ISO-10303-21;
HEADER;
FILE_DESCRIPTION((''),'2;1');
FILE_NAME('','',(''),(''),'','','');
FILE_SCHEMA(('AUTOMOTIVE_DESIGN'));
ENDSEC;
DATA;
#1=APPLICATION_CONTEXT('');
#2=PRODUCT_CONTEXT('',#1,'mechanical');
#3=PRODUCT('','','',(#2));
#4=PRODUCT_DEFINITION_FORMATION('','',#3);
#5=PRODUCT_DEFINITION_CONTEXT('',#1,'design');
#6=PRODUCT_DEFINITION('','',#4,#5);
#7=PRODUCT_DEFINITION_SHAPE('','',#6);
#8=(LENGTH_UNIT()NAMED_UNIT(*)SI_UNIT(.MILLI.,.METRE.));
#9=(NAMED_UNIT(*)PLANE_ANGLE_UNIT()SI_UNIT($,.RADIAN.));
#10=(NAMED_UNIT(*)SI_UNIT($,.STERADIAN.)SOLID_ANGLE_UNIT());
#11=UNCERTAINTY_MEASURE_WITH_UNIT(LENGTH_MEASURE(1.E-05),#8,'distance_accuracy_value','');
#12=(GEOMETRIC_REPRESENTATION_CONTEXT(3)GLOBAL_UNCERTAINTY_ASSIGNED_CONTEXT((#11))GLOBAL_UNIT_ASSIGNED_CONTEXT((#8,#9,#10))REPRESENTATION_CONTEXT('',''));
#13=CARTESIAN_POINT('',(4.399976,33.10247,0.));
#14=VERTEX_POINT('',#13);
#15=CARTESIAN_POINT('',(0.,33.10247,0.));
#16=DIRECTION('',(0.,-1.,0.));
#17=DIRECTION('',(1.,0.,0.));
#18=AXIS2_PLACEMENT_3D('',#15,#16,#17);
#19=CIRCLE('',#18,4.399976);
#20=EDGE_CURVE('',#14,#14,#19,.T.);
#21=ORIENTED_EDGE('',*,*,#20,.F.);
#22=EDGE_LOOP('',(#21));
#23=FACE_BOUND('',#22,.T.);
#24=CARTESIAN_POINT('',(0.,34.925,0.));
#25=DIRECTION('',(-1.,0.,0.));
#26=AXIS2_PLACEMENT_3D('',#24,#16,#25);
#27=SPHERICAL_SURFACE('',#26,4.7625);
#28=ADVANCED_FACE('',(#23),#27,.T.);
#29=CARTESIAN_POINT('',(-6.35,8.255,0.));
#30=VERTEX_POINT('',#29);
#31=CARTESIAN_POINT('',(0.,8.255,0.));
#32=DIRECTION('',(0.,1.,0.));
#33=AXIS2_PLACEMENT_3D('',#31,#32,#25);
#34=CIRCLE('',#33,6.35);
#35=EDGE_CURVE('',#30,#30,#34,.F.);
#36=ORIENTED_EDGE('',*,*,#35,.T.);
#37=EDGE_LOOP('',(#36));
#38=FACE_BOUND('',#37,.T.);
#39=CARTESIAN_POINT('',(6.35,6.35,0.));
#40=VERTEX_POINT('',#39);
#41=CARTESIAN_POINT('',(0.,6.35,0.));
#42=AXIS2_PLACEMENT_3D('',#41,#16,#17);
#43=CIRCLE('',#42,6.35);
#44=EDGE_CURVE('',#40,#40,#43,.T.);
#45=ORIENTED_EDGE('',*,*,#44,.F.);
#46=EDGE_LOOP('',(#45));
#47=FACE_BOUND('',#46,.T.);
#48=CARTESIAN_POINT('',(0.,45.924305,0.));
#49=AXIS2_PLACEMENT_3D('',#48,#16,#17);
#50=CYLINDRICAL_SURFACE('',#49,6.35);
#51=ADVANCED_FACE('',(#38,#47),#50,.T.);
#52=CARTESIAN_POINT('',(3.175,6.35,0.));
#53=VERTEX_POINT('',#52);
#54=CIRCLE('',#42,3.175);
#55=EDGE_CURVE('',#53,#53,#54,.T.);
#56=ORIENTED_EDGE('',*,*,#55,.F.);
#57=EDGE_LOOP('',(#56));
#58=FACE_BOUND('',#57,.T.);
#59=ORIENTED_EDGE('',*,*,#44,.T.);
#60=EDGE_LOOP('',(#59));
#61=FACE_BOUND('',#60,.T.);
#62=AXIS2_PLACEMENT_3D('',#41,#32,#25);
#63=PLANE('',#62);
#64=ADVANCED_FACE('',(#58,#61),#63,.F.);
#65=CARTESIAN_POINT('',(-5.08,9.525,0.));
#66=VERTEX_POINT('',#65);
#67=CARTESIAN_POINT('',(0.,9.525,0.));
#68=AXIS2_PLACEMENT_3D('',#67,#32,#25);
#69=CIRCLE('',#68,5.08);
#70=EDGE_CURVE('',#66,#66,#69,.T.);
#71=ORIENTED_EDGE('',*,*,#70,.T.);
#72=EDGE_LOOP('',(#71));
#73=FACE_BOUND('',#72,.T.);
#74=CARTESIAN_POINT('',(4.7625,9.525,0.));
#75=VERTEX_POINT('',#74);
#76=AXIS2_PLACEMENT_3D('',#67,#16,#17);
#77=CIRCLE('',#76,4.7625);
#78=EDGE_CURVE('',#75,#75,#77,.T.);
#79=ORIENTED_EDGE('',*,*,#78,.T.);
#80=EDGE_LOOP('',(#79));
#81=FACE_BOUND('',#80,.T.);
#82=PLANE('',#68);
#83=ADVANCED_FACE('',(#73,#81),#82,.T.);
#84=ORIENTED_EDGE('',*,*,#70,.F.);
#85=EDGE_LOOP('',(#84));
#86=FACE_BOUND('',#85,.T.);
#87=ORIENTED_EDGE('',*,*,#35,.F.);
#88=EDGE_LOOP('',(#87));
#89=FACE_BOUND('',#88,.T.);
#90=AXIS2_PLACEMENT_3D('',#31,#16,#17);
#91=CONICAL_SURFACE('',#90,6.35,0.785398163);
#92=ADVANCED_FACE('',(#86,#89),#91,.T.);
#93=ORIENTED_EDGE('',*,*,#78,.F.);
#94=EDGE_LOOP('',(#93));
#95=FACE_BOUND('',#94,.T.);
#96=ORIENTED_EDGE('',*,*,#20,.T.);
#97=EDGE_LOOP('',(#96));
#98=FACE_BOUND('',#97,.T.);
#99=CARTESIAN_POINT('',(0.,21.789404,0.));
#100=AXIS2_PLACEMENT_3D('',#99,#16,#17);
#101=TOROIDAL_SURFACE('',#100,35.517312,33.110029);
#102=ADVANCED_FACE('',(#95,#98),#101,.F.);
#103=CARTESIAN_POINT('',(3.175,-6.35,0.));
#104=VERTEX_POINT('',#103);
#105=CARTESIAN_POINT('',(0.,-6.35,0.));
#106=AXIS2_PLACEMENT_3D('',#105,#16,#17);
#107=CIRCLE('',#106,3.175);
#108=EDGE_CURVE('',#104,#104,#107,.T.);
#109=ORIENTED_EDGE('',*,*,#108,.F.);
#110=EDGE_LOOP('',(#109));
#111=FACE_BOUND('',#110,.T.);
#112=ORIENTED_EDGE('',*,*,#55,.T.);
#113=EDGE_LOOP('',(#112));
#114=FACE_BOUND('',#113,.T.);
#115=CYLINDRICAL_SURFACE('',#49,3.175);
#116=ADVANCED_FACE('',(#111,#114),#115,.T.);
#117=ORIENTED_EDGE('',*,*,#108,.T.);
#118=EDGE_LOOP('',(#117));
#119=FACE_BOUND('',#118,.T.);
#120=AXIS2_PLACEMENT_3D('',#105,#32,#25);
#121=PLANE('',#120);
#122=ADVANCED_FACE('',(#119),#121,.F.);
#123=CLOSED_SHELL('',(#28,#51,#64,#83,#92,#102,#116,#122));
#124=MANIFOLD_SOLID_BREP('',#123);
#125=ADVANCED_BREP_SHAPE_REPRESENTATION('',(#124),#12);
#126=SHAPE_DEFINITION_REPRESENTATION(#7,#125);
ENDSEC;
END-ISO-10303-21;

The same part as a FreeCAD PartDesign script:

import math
import FreeCAD as App
import Part
import Sketcher

V = App.Vector
Q = App.Units.Quantity


def edges_at(feature, points):
    """Names of the edges that pass closest to the given points."""
    edges = feature.Shape.Edges
    near = lambda p: min(range(len(edges)), key=lambda i: edges[i].distToShape(Part.Vertex(*p))[0])
    return sorted({f"Edge{near(p) + 1}" for p in points})

doc = App.newDocument("Part")
params = doc.addObject("Spreadsheet::Sheet", "Params")
for row, (alias, value) in enumerate([
    ("sketch1_height", "0.5 in"),
    ("sketch1_radius", "0.1875 in"),
    ("sketch1_width", "0.0625 in"),
    ("sketch1_width2", "0.125 in"),
    ("sketch1_width3", "0.125 in"),
    ("revolution_angle", "360 deg"),
    ("chamfer_size", "0.05 in"),
], start=1):
    params.set(f"A{row}", alias)
    params.set(f"B{row}", "=" + value)
    params.setAlias(f"B{row}", alias)

body = doc.addObject("PartDesign::Body", "Body")

sketch1 = body.newObject("Sketcher::SketchObject", "Sketch")
sketch1.AttachmentSupport = (doc.getObject("XY_Plane"), [""])
sketch1.MapMode = "FlatFace"
sketch1.addGeometry(Part.ArcOfCircle(Part.Circle(V(0, 34.925, 0), V(0, 0, 1), 4.7625), math.radians(90), math.radians(180)), False)
sketch1.addGeometry(Part.ArcOfCircle(Part.Circle(V(0, 34.925, 0), V(0, 0, 1), 4.7625), math.radians(180), math.radians(202.5)), False)
sketch1.addGeometry(Part.ArcOfCircle(Part.Circle(V(-35.517312, 21.789404, 0), V(0, 0, 1), 33.110029), math.radians(-21.741124), math.radians(19.97932)), False)
sketch1.addGeometry(Part.LineSegment(V(-4.7625, 9.525, 0), V(-6.35, 9.525, 0)), False)
sketch1.addGeometry(Part.LineSegment(V(-6.35, 9.525, 0), V(-6.35, 6.35, 0)), False)
sketch1.addGeometry(Part.LineSegment(V(-6.35, 6.35, 0), V(-3.175, 6.35, 0)), False)
sketch1.addGeometry(Part.LineSegment(V(-3.175, 6.35, 0), V(-3.175, -6.35, 0)), False)
sketch1.addGeometry(Part.LineSegment(V(-3.175, -6.35, 0), V(0, -6.35, 0)), False)
sketch1.addGeometry(Part.LineSegment(V(0, -6.35, 0), V(0, 39.6875, 0)), False)
sketch1.addConstraint(Sketcher.Constraint("Coincident", 0, 2, 1, 1))
sketch1.addConstraint(Sketcher.Constraint("Coincident", 1, 2, 2, 2))
sketch1.addConstraint(Sketcher.Constraint("Coincident", 2, 1, 3, 1))
sketch1.addConstraint(Sketcher.Constraint("Coincident", 3, 2, 4, 1))
sketch1.addConstraint(Sketcher.Constraint("Coincident", 4, 2, 5, 1))
sketch1.addConstraint(Sketcher.Constraint("Coincident", 5, 2, 6, 1))
sketch1.addConstraint(Sketcher.Constraint("Coincident", 6, 2, 7, 1))
sketch1.addConstraint(Sketcher.Constraint("Coincident", 7, 2, 8, 1))
sketch1.addConstraint(Sketcher.Constraint("Coincident", 8, 2, 0, 1))
sketch1.addConstraint(Sketcher.Constraint("Horizontal", 3))
sketch1.addConstraint(Sketcher.Constraint("Vertical", 4))
sketch1.addConstraint(Sketcher.Constraint("Horizontal", 5))
sketch1.addConstraint(Sketcher.Constraint("Vertical", 6))
sketch1.addConstraint(Sketcher.Constraint("Horizontal", 7))
sketch1.addConstraint(Sketcher.Constraint("Vertical", 8))
sketch1.addConstraint(Sketcher.Constraint("Coincident", 1, 3, 0, 3))
sketch1.addConstraint(Sketcher.Constraint("PointOnObject", 0, 3, -2))
sketch1.addConstraint(Sketcher.Constraint("PointOnObject", 7, 2, -2))
sketch1.addConstraint(Sketcher.Constraint("DistanceY", 6, 2, 6, 1, Q("0.5 in")))
sketch1.addConstraint(Sketcher.Constraint("Radius", 0, Q("0.1875 in")))
sketch1.addConstraint(Sketcher.Constraint("DistanceY", 2, 1, 0, 2, Q("1 in")))
sketch1.addConstraint(Sketcher.Constraint("DistanceY", 2, 1, 0, 3, Q("1 in")))
sketch1.addConstraint(Sketcher.Constraint("DistanceX", 3, 2, 3, 1, Q("0.0625 in")))
sketch1.addConstraint(Sketcher.Constraint("DistanceX", 5, 1, 5, 2, Q("0.125 in")))
sketch1.addConstraint(Sketcher.Constraint("DistanceX", 7, 1, 7, 2, Q("0.125 in")))
sketch1.addConstraint(Sketcher.Constraint("DistanceY", 4, 2, 4, 1, Q("0.125 in")))
sketch1.addConstraint(Sketcher.Constraint("DistanceY", -1, 1, 4, 2, Q("0.25 in")))
sketch1.addConstraint(Sketcher.Constraint("Radius", 2, 33.110029))
sketch1.addConstraint(Sketcher.Constraint("DistanceX", 2, 3, -1, 1, 35.517312))
sketch1.setExpression("Constraints[18]", "Params.sketch1_height")
sketch1.setExpression("Constraints[19]", "Params.sketch1_radius")
sketch1.setExpression("Constraints[22]", "Params.sketch1_width")
sketch1.setExpression("Constraints[23]", "Params.sketch1_width2")
sketch1.setExpression("Constraints[24]", "Params.sketch1_width3")
revolution = body.newObject("PartDesign::Revolution", "Revolution")
revolution.Profile = sketch1
revolution.ReferenceAxis = (sketch1, ["V_Axis"])
revolution.setExpression("Angle", "Params.revolution_angle")
doc.recompute()

chamfer = body.newObject("PartDesign::Chamfer", "Chamfer")
chamfer.Base = (revolution, edges_at(revolution, [(-6.35, 9.525, 0)]))
chamfer.setExpression("Size", "Params.chamfer_size")

doc.recompute()
